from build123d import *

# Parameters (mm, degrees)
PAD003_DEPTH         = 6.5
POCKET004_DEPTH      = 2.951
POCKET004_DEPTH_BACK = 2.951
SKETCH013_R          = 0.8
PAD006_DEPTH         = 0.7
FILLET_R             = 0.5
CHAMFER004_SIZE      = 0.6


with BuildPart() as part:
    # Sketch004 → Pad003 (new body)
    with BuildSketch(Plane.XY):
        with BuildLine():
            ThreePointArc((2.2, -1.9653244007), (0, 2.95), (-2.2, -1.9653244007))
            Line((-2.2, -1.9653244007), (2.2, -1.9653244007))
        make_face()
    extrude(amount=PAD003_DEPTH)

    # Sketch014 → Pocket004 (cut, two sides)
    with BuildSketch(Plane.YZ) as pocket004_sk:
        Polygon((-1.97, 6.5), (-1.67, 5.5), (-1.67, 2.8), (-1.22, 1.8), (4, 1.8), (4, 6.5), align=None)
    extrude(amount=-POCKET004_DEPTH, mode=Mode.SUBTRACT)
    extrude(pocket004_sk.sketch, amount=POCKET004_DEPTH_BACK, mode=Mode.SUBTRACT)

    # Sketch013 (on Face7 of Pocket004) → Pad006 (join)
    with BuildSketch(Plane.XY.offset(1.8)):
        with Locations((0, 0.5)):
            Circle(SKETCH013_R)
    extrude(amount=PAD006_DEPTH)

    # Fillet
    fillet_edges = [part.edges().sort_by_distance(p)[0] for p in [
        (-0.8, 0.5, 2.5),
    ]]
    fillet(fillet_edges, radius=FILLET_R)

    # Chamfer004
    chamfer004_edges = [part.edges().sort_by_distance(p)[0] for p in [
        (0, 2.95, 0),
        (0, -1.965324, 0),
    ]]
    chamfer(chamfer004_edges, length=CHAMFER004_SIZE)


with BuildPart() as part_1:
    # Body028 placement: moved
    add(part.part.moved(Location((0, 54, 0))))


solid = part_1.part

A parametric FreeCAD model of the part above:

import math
import FreeCAD as App
import Part
import Sketcher


def edges_at(feature, points):
    """Names of the edges that pass closest to the given points."""
    edges = feature.Shape.Edges
    near = lambda p: min(range(len(edges)), key=lambda i: edges[i].distToShape(Part.Vertex(*p))[0])
    return sorted({f"Edge{near(p) + 1}" for p in points})


def add_polygon(sketch, points):
    """Adds a closed chain of lines whose ends are joined by coincident constraints."""
    first, n = sketch.GeometryCount, len(points)
    for a, b in zip(points, points[1:] + points[:1]):
        sketch.addGeometry(Part.LineSegment(App.Vector(*a, 0), App.Vector(*b, 0)), False)
    for i in range(n):
        sketch.addConstraint(Sketcher.Constraint("Coincident", first + i, 2, first + (i + 1) % n, 1))

doc = App.newDocument("Part")
body = doc.addObject("PartDesign::Body", "Body")

# Sketch on XY plane
sketch1 = doc.addObject("Sketcher::SketchObject", "Sketch")
body.addObject(sketch1)
sketch1.AttachmentSupport = (doc.XY_Plane, [""])
sketch1.MapMode = "FlatFace"
sketch1.addGeometry(Part.ArcOfCircle(Part.Circle(App.Vector(0, 0, 0), App.Vector(0, 0, 1), 3), math.radians(-42), math.radians(222)), False)
sketch1.addGeometry(Part.LineSegment(App.Vector(-2.2, -2, 0), App.Vector(2.2, -2, 0)), False)
sketch1.addConstraint(Sketcher.Constraint("Coincident", 0, 1, 1, 2))
sketch1.addConstraint(Sketcher.Constraint("Coincident", 1, 1, 0, 2))
sketch1.addConstraint(Sketcher.Constraint("Horizontal", 1))
sketch1.addConstraint(Sketcher.Constraint("Coincident", 0, 3, -1, 1))
sketch1.addConstraint(Sketcher.Constraint("Radius", 0, 2.95))
sketch1.addConstraint(Sketcher.Constraint("DistanceX", 1, 1, 1, 2, 4.4))
pad1 = doc.addObject("PartDesign::Pad", "Pad")
body.addObject(pad1)
pad1.Profile = sketch1
pad1.Length = 6.5

# Sketch on YZ plane
sketch2 = doc.addObject("Sketcher::SketchObject", "Sketch001")
body.addObject(sketch2)
sketch2.AttachmentSupport = (doc.YZ_Plane, [""])
sketch2.MapMode = "FlatFace"
add_polygon(sketch2, [(-2, 6.5), (-1.7, 5.5), (-1.7, 2.8), (-1.2, 1.8), (4, 1.8), (4, 6.5)])  # lines 0-5
sketch2.addConstraint(Sketcher.Constraint("Vertical", 1))
sketch2.addConstraint(Sketcher.Constraint("Horizontal", 3))
sketch2.addConstraint(Sketcher.Constraint("Vertical", 4))
sketch2.addConstraint(Sketcher.Constraint("Horizontal", 5))
sketch2.addConstraint(Sketcher.Constraint("DistanceY", 1, 2, 1, 1, 2.7))
sketch2.addConstraint(Sketcher.Constraint("DistanceY", 4, 1, 4, 2, 4.7))
sketch2.addConstraint(Sketcher.Constraint("DistanceX", -1, 1, 3, 2, 4.0))
sketch2.addConstraint(Sketcher.Constraint("DistanceY", 2, 2, 1, 2, 1.0))
sketch2.addConstraint(Sketcher.Constraint("DistanceX", 3, 1, 3, 2, 5.22))
sketch2.addConstraint(Sketcher.Constraint("DistanceX", 5, 2, 5, 1, 5.97))
sketch2.addConstraint(Sketcher.Constraint("DistanceY", -1, 1, 0, 2, 5.5))
sketch2.addConstraint(Sketcher.Constraint("DistanceX", 5, 2, 0, 2, 0.3))
pocket1 = doc.addObject("PartDesign::Pocket", "Pocket")
body.addObject(pocket1)
pocket1.Profile = sketch2
pocket1.Type = "ThroughAll"
pocket1.Midplane = True

# Sketch on XY plane
sketch3 = doc.addObject("Sketcher::SketchObject", "Sketch002")
body.addObject(sketch3)
sketch3.AttachmentSupport = (doc.XY_Plane, [""])
sketch3.MapMode = "FlatFace"
sketch3.AttachmentOffset = App.Placement(App.Vector(0, 0, 1.8), App.Rotation())
sketch3.addGeometry(Part.Circle(App.Vector(0, 0.5, 0), App.Vector(0, 0, 1), 0.8), False)
sketch3.addConstraint(Sketcher.Constraint("PointOnObject", 0, 3, -2))
sketch3.addConstraint(Sketcher.Constraint("Diameter", 0, 1.6))
sketch3.addConstraint(Sketcher.Constraint("DistanceY", -1, 1, 0, 3, 0.5))
pad2 = doc.addObject("PartDesign::Pad", "Pad001")
body.addObject(pad2)
pad2.Profile = sketch3
pad2.Length = 0.7
doc.recompute()

fillet = doc.addObject("PartDesign::Fillet", "Fillet")
body.addObject(fillet)
fillet.Base = (pad2, edges_at(pad2, [(-0.8, 0.5, 2.5)]))
fillet.Radius = 0.5
doc.recompute()

chamfer = doc.addObject("PartDesign::Chamfer", "Chamfer")
body.addObject(chamfer)
chamfer.Base = (fillet, edges_at(fillet, [(0, 2.95, 0), (0, -1.965, 0)]))
chamfer.Size = 0.6
body2 = doc.addObject("PartDesign::Body", "Body001")
doc.recompute()

body.Placement = App.Placement(App.Vector(0, 54, 0), App.Rotation(App.Vector(0, 0, 1), 0))
boolean = doc.addObject("PartDesign::Boolean", "Boolean")
body2.addObject(boolean)
boolean.Type = "Fuse"
boolean.addObjects([body])

doc.recompute()
